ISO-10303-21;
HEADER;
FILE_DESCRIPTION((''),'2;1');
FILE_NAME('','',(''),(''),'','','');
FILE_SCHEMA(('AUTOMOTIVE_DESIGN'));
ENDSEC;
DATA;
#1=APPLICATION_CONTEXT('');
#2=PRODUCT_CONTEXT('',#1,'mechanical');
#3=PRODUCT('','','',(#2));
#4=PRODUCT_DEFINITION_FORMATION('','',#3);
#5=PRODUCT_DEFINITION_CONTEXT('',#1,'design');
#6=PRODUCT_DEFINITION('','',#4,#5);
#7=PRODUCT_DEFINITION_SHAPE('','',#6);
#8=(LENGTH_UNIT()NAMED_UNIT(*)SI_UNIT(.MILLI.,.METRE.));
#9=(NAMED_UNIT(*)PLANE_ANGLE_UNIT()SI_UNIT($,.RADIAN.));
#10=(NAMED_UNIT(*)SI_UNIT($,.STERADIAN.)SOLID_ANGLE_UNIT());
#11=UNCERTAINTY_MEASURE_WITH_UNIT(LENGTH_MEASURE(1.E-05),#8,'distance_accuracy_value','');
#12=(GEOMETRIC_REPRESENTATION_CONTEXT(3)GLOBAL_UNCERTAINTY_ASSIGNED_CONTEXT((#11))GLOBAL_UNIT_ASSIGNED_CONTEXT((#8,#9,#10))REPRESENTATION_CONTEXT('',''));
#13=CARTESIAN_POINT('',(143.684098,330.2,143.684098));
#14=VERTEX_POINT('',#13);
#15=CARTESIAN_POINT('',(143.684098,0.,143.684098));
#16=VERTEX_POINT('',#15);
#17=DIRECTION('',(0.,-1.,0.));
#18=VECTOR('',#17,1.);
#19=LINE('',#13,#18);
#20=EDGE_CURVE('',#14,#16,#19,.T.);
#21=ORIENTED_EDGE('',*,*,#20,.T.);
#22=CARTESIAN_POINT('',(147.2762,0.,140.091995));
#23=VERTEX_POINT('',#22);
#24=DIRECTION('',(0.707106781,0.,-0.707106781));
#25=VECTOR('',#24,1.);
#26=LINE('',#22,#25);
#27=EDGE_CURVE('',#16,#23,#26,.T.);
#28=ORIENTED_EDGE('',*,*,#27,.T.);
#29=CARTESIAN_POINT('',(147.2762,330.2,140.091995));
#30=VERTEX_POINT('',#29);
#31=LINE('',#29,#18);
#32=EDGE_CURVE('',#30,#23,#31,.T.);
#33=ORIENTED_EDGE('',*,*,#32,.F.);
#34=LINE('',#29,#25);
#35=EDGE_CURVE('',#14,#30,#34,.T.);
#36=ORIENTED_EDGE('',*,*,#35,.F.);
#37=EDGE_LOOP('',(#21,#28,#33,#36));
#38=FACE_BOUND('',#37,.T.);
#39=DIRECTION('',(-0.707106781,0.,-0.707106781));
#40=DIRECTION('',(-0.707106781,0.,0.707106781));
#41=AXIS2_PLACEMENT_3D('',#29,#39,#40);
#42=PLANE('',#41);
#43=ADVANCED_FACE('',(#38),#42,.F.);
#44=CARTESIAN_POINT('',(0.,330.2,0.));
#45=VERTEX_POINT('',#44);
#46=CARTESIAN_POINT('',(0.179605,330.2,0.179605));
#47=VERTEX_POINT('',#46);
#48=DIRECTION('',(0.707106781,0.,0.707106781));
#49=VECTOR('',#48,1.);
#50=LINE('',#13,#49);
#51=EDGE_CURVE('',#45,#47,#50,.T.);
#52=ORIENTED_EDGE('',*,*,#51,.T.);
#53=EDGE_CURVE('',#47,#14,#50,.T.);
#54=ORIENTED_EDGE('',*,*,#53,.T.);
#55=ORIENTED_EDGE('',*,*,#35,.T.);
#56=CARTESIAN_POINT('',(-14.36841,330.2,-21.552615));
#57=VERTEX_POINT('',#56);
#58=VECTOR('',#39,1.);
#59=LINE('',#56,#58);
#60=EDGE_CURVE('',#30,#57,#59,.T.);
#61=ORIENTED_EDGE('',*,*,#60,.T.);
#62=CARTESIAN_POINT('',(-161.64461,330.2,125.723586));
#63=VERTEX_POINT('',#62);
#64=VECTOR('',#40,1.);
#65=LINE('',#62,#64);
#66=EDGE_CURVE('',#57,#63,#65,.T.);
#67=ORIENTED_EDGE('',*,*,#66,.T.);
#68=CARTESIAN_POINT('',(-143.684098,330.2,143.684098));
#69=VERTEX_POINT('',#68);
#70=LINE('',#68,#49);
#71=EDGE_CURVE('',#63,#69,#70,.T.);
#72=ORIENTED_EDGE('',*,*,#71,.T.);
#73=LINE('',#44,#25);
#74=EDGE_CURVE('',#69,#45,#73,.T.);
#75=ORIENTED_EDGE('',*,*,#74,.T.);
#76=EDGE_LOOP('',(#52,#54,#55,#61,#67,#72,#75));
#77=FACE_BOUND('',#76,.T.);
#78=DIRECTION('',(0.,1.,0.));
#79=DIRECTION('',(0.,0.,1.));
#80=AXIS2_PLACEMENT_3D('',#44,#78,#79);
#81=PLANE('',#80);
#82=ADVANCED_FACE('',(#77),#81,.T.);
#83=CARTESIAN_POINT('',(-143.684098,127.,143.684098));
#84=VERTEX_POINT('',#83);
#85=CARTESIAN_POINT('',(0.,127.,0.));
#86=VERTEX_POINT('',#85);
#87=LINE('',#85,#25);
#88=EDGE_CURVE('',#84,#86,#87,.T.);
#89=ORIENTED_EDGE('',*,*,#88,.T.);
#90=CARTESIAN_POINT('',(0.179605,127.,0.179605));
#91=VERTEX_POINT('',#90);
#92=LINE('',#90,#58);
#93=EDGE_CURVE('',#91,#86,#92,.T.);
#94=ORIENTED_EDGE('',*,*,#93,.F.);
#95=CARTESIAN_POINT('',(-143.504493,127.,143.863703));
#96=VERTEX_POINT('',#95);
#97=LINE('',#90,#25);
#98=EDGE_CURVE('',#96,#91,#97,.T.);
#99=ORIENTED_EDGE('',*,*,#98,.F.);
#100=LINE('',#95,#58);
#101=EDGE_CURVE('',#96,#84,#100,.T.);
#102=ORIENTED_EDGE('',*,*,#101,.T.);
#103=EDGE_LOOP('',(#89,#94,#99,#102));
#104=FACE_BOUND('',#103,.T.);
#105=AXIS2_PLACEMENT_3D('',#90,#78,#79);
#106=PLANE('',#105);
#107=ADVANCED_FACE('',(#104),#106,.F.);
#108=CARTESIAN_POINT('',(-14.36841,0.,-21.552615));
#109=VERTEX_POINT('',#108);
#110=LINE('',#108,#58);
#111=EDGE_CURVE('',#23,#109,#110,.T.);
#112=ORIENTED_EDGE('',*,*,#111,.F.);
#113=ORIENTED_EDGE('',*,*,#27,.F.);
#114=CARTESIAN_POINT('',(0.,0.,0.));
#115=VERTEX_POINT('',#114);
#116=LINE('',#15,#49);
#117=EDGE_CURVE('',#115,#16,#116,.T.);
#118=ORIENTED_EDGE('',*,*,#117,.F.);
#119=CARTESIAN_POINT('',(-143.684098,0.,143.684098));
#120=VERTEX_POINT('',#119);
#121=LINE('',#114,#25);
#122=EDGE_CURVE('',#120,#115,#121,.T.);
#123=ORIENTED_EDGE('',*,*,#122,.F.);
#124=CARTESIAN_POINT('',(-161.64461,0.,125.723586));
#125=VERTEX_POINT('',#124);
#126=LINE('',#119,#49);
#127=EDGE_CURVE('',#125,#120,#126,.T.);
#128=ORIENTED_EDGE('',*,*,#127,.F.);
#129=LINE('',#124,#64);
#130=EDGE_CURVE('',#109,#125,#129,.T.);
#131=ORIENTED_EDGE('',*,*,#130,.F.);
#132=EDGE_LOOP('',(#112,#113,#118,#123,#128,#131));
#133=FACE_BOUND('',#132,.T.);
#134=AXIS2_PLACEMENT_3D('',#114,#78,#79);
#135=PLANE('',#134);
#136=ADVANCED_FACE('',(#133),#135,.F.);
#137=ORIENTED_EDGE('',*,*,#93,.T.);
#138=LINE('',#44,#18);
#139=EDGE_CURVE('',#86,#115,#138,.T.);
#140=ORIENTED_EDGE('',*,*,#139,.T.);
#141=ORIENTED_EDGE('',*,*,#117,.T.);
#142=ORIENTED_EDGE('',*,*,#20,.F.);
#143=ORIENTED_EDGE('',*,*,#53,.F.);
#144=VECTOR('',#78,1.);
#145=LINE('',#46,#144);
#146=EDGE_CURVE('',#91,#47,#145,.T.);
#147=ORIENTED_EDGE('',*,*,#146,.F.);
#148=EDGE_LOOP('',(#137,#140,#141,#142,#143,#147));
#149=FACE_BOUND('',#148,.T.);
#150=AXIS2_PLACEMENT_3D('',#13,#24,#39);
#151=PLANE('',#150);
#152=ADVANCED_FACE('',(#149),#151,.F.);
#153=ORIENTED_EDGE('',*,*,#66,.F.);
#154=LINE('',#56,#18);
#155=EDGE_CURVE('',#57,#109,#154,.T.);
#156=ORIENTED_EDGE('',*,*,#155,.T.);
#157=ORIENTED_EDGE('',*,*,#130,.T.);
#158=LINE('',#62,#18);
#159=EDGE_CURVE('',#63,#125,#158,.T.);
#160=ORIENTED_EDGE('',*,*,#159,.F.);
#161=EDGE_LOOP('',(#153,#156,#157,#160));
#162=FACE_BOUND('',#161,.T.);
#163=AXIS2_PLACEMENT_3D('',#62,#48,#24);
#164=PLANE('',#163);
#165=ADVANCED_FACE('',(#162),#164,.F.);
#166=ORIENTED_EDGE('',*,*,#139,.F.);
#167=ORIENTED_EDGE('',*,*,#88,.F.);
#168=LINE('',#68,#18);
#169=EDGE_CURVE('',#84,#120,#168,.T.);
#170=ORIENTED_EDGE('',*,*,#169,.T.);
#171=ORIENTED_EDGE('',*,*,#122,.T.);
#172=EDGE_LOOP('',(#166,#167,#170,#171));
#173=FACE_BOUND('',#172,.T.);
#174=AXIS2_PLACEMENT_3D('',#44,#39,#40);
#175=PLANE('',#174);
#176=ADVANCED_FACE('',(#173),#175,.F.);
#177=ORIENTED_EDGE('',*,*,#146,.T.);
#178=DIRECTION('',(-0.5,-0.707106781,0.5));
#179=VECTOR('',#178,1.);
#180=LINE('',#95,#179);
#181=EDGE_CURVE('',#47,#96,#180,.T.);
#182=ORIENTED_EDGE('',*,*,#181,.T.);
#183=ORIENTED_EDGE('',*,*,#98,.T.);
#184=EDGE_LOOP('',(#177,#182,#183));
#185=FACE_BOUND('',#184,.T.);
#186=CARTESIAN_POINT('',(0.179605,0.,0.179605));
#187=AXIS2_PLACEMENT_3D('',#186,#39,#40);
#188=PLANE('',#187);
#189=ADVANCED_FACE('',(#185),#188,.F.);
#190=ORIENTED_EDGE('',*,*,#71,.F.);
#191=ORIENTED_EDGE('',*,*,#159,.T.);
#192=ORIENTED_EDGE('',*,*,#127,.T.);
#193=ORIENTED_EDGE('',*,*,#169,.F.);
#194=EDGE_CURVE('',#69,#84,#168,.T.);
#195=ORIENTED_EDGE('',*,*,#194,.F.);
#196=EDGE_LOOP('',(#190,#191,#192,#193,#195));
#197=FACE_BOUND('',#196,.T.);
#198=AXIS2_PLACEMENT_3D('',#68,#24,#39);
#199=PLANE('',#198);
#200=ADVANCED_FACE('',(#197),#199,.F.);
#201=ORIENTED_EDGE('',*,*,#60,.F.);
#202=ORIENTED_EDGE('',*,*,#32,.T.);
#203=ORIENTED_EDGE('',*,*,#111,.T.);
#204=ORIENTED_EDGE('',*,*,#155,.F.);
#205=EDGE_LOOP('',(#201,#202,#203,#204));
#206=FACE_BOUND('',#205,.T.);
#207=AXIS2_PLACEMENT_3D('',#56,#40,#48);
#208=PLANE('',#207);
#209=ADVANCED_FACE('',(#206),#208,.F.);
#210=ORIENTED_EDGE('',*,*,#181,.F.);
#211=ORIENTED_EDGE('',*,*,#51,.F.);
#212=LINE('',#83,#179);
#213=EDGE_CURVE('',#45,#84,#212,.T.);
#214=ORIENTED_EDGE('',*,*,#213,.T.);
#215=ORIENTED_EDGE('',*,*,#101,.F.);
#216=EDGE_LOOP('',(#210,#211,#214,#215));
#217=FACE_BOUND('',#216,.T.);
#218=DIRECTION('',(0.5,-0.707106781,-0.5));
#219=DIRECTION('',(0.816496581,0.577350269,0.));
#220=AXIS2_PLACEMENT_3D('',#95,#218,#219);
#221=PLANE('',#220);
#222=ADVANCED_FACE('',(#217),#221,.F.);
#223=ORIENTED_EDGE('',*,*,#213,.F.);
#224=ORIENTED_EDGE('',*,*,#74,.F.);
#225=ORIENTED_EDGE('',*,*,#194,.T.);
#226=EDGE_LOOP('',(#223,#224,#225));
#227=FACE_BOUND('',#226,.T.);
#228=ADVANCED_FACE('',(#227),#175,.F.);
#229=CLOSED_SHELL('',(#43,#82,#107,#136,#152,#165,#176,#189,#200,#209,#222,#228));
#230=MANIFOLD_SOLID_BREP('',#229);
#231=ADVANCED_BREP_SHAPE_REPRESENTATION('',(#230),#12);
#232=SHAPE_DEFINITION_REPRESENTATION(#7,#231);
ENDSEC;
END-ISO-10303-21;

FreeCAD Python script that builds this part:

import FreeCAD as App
import Part
import Sketcher
Q = App.Units.Quantity

doc = App.newDocument("Part")
params = doc.addObject("Spreadsheet::Sheet", "Params")
for row, (alias, value) in enumerate([
    ("sketch1_length", "8 in"),
    ("sketch1_length2", "9 in"),
    ("sketch1_length3", "0.2 in"),
    ("pad1_length", "13 in"),
    ("sketch2_width", "8 in"),
    ("pad2_length", "0.01 in"),
], start=1):
    params.set(f"A{row}", alias)
    params.set(f"B{row}", "=" + value)
    params.setAlias(f"B{row}", alias)

body = doc.addObject("PartDesign::Body", "Body")

sketch1 = doc.addObject("Sketcher::SketchObject", "Sketch")
body.addObject(sketch1)
sketch1.AttachmentSupport = (doc.XZ_Plane, [""])
sketch1.MapMode = "FlatFace"
sketch1.addGeometry(Part.LineSegment(App.Vector(-143.684098, 143.684098, 0), App.Vector(0, 0, 0)), False)
sketch1.addGeometry(Part.LineSegment(App.Vector(0, 0, 0), App.Vector(143.684098, 143.684098, 0)), False)
sketch1.addGeometry(Part.LineSegment(App.Vector(143.684098, 143.684098, 0), App.Vector(147.2762, 140.091995, 0)), False)
sketch1.addGeometry(Part.LineSegment(App.Vector(147.2762, 140.091995, 0), App.Vector(-14.36841, -21.552615, 0)), False)
sketch1.addGeometry(Part.LineSegment(App.Vector(-14.36841, -21.552615, 0), App.Vector(-161.64461, 125.723586, 0)), False)
sketch1.addGeometry(Part.LineSegment(App.Vector(-161.64461, 125.723586, 0), App.Vector(-143.684098, 143.684098, 0)), False)
sketch1.addConstraint(Sketcher.Constraint("Coincident", 0, 2, 1, 1))
sketch1.addConstraint(Sketcher.Constraint("Coincident", 1, 2, 2, 1))
sketch1.addConstraint(Sketcher.Constraint("Coincident", 2, 2, 3, 1))
sketch1.addConstraint(Sketcher.Constraint("Coincident", 3, 2, 4, 1))
sketch1.addConstraint(Sketcher.Constraint("Coincident", 4, 2, 5, 1))
sketch1.addConstraint(Sketcher.Constraint("Coincident", 5, 2, 0, 1))
sketch1.addConstraint(Sketcher.Constraint("Coincident", 0, 2, -1, 1))
sketch1.addConstraint(Sketcher.Constraint("Symmetric", 1, 2, 5, 2, -2))
sketch1.addConstraint(Sketcher.Constraint("Perpendicular", 0, 1))
sketch1.addConstraint(Sketcher.Constraint("Perpendicular", 1, 2))
sketch1.addConstraint(Sketcher.Constraint("Perpendicular", 2, 3))
sketch1.addConstraint(Sketcher.Constraint("Perpendicular", 3, 4))
sketch1.addConstraint(Sketcher.Constraint("Perpendicular", 4, 5))
sketch1.addConstraint(Sketcher.Constraint("Distance", 0, Q("8 in")))
sketch1.addConstraint(Sketcher.Constraint("Distance", 3, Q("9 in")))
sketch1.addConstraint(Sketcher.Constraint("Distance", 2, Q("0.2 in")))
sketch1.setExpression("Constraints[13]", "Params.sketch1_length")
sketch1.setExpression("Constraints[14]", "Params.sketch1_length2")
sketch1.setExpression("Constraints[15]", "Params.sketch1_length3")
pad1 = doc.addObject("PartDesign::Pad", "Pad")
body.addObject(pad1)
pad1.Profile = sketch1
pad1.setExpression("Length", "Params.pad1_length")
pad1.Reversed = True

sketch2 = doc.addObject("Sketcher::SketchObject", "Sketch001")
body.addObject(sketch2)
sketch2.Placement = App.Placement(App.Vector(0, 0, 0), App.Rotation(App.Vector(0.707106781, 0, -0.707106781), App.Vector(0, 0.999999999, 0), App.Vector(0.707106781, 0, 0.707106781), "ZXY"))
sketch2.addGeometry(Part.LineSegment(App.Vector(0, 127, 0), App.Vector(0, 330.2, 0)), False)
sketch2.addGeometry(Part.LineSegment(App.Vector(0, 330.2, 0), App.Vector(-203.2, 127, 0)), False)
sketch2.addGeometry(Part.LineSegment(App.Vector(-203.2, 127, 0), App.Vector(0, 127, 0)), False)
sketch2.addConstraint(Sketcher.Constraint("Coincident", 0, 2, 1, 1))
sketch2.addConstraint(Sketcher.Constraint("Coincident", 1, 2, 2, 1))
sketch2.addConstraint(Sketcher.Constraint("Coincident", 2, 2, 0, 1))
sketch2.addConstraint(Sketcher.Constraint("Vertical", 0))
sketch2.addConstraint(Sketcher.Constraint("Horizontal", 2))
sketch2.addConstraint(Sketcher.Constraint("PointOnObject", 0, 2, -2))
sketch2.addConstraint(Sketcher.Constraint("Equal", 2, 0))
sketch2.addConstraint(Sketcher.Constraint("DistanceX", 2, 1, 2, 2, Q("8 in")))
sketch2.addConstraint(Sketcher.Constraint("DistanceY", -1, 1, 0, 2, Q("13 in")))
sketch2.setExpression("Constraints[7]", "Params.sketch2_width")
pad2 = doc.addObject("PartDesign::Pad", "Pad001")
body.addObject(pad2)
pad2.Profile = sketch2
pad2.setExpression("Length", "Params.pad2_length")

doc.recompute()
